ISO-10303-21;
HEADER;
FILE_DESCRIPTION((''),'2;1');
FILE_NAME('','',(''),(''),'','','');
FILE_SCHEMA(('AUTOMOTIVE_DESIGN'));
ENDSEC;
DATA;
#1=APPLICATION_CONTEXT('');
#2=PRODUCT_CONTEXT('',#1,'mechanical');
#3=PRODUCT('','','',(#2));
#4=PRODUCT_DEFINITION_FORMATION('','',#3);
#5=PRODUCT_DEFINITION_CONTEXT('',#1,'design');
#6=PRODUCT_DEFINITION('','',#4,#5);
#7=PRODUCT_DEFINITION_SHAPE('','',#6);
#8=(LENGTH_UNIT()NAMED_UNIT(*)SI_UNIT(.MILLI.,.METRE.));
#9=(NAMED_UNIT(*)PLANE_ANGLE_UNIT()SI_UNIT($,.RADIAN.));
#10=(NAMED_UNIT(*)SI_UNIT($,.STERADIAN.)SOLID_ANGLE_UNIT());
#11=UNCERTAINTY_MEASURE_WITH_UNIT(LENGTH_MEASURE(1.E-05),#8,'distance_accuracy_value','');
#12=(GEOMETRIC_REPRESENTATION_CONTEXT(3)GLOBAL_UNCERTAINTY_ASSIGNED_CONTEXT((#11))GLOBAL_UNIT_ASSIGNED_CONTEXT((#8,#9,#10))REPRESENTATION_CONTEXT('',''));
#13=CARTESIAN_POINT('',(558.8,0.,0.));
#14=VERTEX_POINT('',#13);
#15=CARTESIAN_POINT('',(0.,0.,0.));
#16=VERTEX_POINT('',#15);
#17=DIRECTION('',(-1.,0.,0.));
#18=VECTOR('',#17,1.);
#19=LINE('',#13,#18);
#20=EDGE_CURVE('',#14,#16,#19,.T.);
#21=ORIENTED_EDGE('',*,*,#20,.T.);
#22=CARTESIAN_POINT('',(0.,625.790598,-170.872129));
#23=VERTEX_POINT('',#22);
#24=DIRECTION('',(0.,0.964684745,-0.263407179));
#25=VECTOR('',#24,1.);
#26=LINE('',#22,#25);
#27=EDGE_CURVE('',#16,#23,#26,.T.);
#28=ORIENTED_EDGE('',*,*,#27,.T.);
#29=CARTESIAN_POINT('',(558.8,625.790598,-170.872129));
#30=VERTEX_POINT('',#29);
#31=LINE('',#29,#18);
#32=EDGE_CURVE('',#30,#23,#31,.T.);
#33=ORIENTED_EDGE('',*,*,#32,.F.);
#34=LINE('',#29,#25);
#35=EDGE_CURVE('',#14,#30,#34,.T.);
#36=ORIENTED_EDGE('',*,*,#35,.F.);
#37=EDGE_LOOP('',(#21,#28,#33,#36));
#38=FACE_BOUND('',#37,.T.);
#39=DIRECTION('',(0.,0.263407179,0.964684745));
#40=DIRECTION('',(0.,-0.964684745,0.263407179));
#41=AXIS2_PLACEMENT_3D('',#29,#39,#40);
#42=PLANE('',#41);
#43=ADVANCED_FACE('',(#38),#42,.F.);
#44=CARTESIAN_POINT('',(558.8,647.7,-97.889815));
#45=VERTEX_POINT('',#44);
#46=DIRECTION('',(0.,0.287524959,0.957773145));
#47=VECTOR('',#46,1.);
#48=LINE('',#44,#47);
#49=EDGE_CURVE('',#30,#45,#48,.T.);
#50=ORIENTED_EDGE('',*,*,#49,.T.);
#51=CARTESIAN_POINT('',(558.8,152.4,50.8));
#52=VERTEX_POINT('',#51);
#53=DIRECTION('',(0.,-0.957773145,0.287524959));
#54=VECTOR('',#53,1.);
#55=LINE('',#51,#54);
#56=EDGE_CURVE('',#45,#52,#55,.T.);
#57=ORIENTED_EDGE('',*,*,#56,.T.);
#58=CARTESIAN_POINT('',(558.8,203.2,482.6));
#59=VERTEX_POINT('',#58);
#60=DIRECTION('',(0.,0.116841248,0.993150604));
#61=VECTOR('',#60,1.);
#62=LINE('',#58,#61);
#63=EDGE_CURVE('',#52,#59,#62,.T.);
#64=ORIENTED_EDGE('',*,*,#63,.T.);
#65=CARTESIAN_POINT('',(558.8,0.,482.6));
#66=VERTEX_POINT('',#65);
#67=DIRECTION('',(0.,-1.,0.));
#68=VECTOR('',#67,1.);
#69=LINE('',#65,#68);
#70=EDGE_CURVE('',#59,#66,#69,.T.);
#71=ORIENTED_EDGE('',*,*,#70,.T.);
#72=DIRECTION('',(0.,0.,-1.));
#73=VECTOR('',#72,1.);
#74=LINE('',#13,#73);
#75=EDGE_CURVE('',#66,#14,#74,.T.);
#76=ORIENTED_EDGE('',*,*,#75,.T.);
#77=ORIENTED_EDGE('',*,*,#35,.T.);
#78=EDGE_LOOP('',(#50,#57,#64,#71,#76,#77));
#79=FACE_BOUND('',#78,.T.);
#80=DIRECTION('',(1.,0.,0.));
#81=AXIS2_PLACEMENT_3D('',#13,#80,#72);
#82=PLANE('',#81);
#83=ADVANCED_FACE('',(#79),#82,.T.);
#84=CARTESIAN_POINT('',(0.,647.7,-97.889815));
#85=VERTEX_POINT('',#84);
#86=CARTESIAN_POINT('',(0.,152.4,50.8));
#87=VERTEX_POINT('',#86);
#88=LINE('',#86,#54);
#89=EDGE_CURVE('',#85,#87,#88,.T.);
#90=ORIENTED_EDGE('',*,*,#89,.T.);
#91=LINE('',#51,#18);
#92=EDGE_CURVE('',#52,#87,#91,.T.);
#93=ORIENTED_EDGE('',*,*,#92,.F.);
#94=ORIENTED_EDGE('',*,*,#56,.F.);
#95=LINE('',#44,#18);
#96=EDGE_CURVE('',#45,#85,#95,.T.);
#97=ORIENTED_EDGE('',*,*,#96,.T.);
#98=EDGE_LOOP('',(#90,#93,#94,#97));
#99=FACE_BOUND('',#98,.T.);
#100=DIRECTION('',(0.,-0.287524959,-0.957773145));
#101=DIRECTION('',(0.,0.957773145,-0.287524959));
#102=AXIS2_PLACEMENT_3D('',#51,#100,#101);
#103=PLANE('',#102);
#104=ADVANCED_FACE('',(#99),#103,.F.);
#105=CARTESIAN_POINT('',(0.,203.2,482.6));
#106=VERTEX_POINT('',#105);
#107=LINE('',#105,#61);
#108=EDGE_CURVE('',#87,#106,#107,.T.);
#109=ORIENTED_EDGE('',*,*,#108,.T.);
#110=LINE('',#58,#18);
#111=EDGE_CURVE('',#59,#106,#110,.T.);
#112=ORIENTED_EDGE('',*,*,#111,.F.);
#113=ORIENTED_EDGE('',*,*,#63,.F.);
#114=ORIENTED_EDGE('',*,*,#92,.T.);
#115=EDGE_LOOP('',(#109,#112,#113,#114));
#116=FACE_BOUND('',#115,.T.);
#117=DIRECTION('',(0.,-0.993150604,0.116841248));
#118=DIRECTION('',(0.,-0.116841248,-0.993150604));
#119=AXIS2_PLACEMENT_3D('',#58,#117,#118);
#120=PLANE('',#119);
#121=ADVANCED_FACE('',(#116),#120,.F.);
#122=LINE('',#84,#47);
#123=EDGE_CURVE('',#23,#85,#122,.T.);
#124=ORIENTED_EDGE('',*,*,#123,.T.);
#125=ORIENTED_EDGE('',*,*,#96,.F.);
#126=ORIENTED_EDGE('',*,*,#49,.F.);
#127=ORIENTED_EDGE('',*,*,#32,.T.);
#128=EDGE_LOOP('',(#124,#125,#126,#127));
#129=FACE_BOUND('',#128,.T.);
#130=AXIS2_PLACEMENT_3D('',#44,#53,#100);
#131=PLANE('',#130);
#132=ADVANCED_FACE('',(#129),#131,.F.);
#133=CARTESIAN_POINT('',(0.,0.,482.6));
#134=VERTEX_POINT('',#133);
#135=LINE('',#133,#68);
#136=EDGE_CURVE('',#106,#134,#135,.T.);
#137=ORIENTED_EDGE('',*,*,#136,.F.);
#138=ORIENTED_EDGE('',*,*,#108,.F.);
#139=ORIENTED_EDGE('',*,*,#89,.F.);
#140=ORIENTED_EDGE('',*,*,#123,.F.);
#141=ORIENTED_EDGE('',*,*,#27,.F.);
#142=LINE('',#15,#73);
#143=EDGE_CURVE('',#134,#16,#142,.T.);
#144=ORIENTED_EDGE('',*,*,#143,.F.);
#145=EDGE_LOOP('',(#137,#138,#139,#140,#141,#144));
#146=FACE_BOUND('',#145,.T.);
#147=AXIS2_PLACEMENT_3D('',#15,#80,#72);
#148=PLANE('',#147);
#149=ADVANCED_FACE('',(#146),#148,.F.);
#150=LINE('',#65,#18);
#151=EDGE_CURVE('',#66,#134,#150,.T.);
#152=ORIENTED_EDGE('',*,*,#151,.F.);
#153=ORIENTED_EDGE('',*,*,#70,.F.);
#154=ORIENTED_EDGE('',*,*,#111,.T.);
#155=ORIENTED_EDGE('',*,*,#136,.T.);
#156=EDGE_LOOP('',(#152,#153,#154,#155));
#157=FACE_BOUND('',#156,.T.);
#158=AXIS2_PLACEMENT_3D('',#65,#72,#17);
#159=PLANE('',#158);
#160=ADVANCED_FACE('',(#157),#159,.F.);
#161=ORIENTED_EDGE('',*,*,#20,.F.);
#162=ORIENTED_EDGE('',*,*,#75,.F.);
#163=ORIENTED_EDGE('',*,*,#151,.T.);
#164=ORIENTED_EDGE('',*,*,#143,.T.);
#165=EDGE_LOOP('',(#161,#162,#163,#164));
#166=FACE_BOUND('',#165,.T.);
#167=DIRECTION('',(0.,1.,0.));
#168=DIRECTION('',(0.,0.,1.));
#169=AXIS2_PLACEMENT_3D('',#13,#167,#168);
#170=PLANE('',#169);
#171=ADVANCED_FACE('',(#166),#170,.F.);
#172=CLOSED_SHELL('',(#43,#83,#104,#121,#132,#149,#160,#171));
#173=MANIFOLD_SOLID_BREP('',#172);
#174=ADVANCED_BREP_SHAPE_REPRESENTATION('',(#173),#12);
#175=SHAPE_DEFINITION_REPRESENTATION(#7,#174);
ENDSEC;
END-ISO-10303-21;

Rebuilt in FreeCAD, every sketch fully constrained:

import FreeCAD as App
import Part
import Sketcher
Q = App.Units.Quantity

doc = App.newDocument("Part")
params = doc.addObject("Spreadsheet::Sheet", "Params")
for row, (alias, value) in enumerate([
    ("sketch1_width", "8 in"),
    ("sketch1_height", "19 in"),
    ("sketch1_length", "3 in"),
    ("pad1_length", "22 in"),
], start=1):
    params.set(f"A{row}", alias)
    params.set(f"B{row}", "=" + value)
    params.setAlias(f"B{row}", alias)

body = doc.addObject("PartDesign::Body", "Body")

sketch1 = body.newObject("Sketcher::SketchObject", "Sketch")
sketch1.AttachmentSupport = (doc.getObject("YZ_Plane"), [""])
sketch1.MapMode = "FlatFace"
sketch1.addGeometry([
    Part.LineSegment(App.Vector(0, 483, 0), App.Vector(0, 0, 0)),
    Part.LineSegment(App.Vector(0, 0, 0), App.Vector(626, -171, 0)),
    Part.LineSegment(App.Vector(626, -171, 0), App.Vector(648, -98, 0)),
    Part.LineSegment(App.Vector(648, -98, 0), App.Vector(152, 51, 0)),
    Part.LineSegment(App.Vector(152, 51, 0), App.Vector(203, 483, 0)),
    Part.LineSegment(App.Vector(203, 483, 0), App.Vector(0, 483, 0)),
], False)
sketch1.addConstraint([
    Sketcher.Constraint("Coincident", 0, 2, 1, 1),
    Sketcher.Constraint("Coincident", 1, 2, 2, 1),
    Sketcher.Constraint("Coincident", 2, 2, 3, 1),
    Sketcher.Constraint("Coincident", 3, 2, 4, 1),
    Sketcher.Constraint("Coincident", 4, 2, 5, 1),
    Sketcher.Constraint("Coincident", 5, 2, 0, 1),
    Sketcher.Constraint("Vertical", 0),
    Sketcher.Constraint("Horizontal", 5),
    Sketcher.Constraint("Coincident", 0, 2, -1, 1),
    Sketcher.Constraint("Perpendicular", 2, 3),
    Sketcher.Constraint("DistanceX", 5, 2, 5, 1, Q("8 in")),
    Sketcher.Constraint("DistanceY", 0, 2, 0, 1, Q("19 in")),
    Sketcher.Constraint("Distance", 2, Q("3 in")),
    Sketcher.Constraint("DistanceX", -1, 1, 3, 2, Q("6 in")),
    Sketcher.Constraint("DistanceY", -1, 1, 3, 2, Q("2 in")),
    Sketcher.Constraint("DistanceX", -1, 1, 2, 2, Q("25.5 in")),
    Sketcher.Constraint("DistanceX", -1, 1, 1, 2, Q("625.790598 mm")),
])
sketch1.setExpression("Constraints[10]", "Params.sketch1_width")
sketch1.setExpression("Constraints[11]", "Params.sketch1_height")
sketch1.setExpression("Constraints[12]", "Params.sketch1_length")
pad1 = body.newObject("PartDesign::Pad", "Pad")
pad1.Profile = sketch1
pad1.setExpression("Length", "Params.pad1_length")

doc.recompute()
